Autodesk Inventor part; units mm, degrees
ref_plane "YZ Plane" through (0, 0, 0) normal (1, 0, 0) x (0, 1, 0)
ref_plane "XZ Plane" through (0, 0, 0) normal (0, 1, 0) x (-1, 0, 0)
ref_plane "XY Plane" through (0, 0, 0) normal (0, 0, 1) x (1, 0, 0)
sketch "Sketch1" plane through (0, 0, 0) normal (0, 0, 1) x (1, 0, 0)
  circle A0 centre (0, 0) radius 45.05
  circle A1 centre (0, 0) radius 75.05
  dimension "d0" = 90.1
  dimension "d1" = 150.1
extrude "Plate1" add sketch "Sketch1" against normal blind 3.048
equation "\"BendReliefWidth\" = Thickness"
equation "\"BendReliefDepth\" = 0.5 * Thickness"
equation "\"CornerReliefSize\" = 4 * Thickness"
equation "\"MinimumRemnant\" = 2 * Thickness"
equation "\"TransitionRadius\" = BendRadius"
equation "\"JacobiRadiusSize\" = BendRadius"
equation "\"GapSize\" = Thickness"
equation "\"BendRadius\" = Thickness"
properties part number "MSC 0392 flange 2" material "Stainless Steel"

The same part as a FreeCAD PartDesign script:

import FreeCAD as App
import Part
import Sketcher

V = App.Vector

doc = App.newDocument("Part")
body = doc.addObject("PartDesign::Body", "Body")

sketch1 = body.newObject("Sketcher::SketchObject", "Sketch")
sketch1.AttachmentSupport = (doc.getObject("XY_Plane"), [""])
sketch1.MapMode = "FlatFace"
sketch1.addGeometry([
    Part.Circle(V(0, 0, 0), V(0, 0, 1), 75),
    Part.Circle(V(0, 0, 0), V(0, 0, 1), 45),
], False)
sketch1.addConstraint([
    Sketcher.Constraint("Coincident", 0, 3, -1, 1),
    Sketcher.Constraint("Coincident", 1, 3, -1, 1),
    Sketcher.Constraint("Diameter", 0, 150.1),
    Sketcher.Constraint("Diameter", 1, 90.1),
])
pad1 = body.newObject("PartDesign::Pad", "Pad")
pad1.Profile = sketch1
pad1.Length = 3.048
pad1.Reversed = True

doc.recompute()
